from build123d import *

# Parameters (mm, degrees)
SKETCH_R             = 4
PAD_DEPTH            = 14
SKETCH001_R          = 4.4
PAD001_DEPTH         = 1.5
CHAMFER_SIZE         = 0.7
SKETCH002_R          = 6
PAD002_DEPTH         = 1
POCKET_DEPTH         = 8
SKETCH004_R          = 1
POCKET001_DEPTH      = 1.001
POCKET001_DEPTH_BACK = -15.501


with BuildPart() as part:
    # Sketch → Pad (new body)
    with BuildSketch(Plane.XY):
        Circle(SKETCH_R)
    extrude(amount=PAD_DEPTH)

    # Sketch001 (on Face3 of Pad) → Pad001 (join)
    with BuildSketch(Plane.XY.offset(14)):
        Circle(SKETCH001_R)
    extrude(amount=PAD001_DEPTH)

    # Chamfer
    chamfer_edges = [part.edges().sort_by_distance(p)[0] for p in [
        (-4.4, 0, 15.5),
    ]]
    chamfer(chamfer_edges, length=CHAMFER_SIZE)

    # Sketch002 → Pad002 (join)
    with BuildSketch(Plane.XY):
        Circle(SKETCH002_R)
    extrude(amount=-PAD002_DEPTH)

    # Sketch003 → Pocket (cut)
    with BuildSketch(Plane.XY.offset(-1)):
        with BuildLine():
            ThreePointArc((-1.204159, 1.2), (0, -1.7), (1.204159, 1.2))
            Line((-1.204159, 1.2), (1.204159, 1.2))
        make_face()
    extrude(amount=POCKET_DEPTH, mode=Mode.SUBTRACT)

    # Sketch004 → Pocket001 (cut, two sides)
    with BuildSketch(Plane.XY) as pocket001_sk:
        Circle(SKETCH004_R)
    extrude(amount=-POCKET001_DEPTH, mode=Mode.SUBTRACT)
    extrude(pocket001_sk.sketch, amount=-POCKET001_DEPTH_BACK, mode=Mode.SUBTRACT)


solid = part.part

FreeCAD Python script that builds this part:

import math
import FreeCAD as App
import Part
import Sketcher
Q = App.Units.Quantity


def edges_at(feature, points):
    """Names of the edges that pass closest to the given points."""
    edges = feature.Shape.Edges
    near = lambda p: min(range(len(edges)), key=lambda i: edges[i].distToShape(Part.Vertex(*p))[0])
    return sorted({f"Edge{near(p) + 1}" for p in points})

doc = App.newDocument("Part")
body = doc.addObject("PartDesign::Body", "Body")

sketch1 = body.newObject("Sketcher::SketchObject", "Sketch")
sketch1.AttachmentSupport = (doc.getObject("XY_Plane"), [""])
sketch1.MapMode = "FlatFace"
sketch1.addGeometry(Part.Circle(App.Vector(0, 0, 0), App.Vector(0, 0, 1), 4), False)
sketch1.addConstraint([
    Sketcher.Constraint("Coincident", 0, 3, -1, 1),
    Sketcher.Constraint("Diameter", 0, Q("8 mm")),
])
pad1 = body.newObject("PartDesign::Pad", "Pad")
pad1.Profile = sketch1
pad1.Length = 14

sketch2 = body.newObject("Sketcher::SketchObject", "Sketch001")
sketch2.AttachmentSupport = (doc.getObject("XY_Plane"), [""])
sketch2.MapMode = "FlatFace"
sketch2.AttachmentOffset = App.Placement(App.Vector(0, 0, 14), App.Rotation())
sketch2.addGeometry(Part.Circle(App.Vector(0, 0, 0), App.Vector(0, 0, 1), 4.4), False)
sketch2.addConstraint([
    Sketcher.Constraint("Coincident", 0, 3, -1, 1),
    Sketcher.Constraint("Diameter", 0, Q("8.8 mm")),
])
pad2 = body.newObject("PartDesign::Pad", "Pad001")
pad2.Profile = sketch2
pad2.Length = 1.5
doc.recompute()

chamfer = body.newObject("PartDesign::Chamfer", "Chamfer")
chamfer.Base = (pad2, edges_at(pad2, [(-4.4, 0, 15.5)]))
chamfer.Size = 0.7

sketch3 = body.newObject("Sketcher::SketchObject", "Sketch002")
sketch3.AttachmentSupport = (doc.getObject("XY_Plane"), [""])
sketch3.MapMode = "FlatFace"
sketch3.addGeometry(Part.Circle(App.Vector(0, 0, 0), App.Vector(0, 0, 1), 6), False)
sketch3.addConstraint([
    Sketcher.Constraint("Coincident", 0, 3, -1, 1),
    Sketcher.Constraint("Diameter", 0, Q("12 mm")),
])
pad3 = body.newObject("PartDesign::Pad", "Pad002")
pad3.Profile = sketch3
pad3.Length = 1
pad3.Reversed = True

sketch4 = body.newObject("Sketcher::SketchObject", "Sketch003")
sketch4.AttachmentSupport = (doc.getObject("XY_Plane"), [""])
sketch4.MapMode = "FlatFace"
sketch4.AttachmentOffset = App.Placement(App.Vector(0, 0, -1), App.Rotation())
sketch4.addGeometry([
    Part.ArcOfCircle(Part.Circle(App.Vector(0, 0, 0), App.Vector(0, 0, 1), 1.7), math.radians(135.099112), math.radians(404.900888)),
    Part.LineSegment(App.Vector(1.204159, 1.2, 0), App.Vector(-1.204159, 1.2, 0)),
], False)
sketch4.addConstraint([
    Sketcher.Constraint("Coincident", 0, 1, 1, 2),
    Sketcher.Constraint("Coincident", 1, 1, 0, 2),
    Sketcher.Constraint("Horizontal", 1),
    Sketcher.Constraint("Coincident", 0, 3, -1, 1),
    Sketcher.Constraint("Radius", 0, Q("1.7 mm")),
    Sketcher.Constraint("DistanceY", -1, 1, 0, 1, Q("1.2 mm")),
])
pocket1 = body.newObject("PartDesign::Pocket", "Pocket")
pocket1.Profile = sketch4
pocket1.Length = 8
pocket1.Reversed = True

sketch5 = body.newObject("Sketcher::SketchObject", "Sketch004")
sketch5.AttachmentSupport = (doc.getObject("XY_Plane"), [""])
sketch5.MapMode = "FlatFace"
sketch5.addGeometry(Part.Circle(App.Vector(0, 0, 0), App.Vector(0, 0, 1), 1), False)
sketch5.addConstraint([
    Sketcher.Constraint("Coincident", 0, 3, -1, 1),
    Sketcher.Constraint("Diameter", 0, Q("2 mm")),
])
pocket2 = body.newObject("PartDesign::Pocket", "Pocket001")
pocket2.Profile = sketch5
pocket2.Type = "ThroughAll"
pocket2.Midplane = True

doc.recompute()
